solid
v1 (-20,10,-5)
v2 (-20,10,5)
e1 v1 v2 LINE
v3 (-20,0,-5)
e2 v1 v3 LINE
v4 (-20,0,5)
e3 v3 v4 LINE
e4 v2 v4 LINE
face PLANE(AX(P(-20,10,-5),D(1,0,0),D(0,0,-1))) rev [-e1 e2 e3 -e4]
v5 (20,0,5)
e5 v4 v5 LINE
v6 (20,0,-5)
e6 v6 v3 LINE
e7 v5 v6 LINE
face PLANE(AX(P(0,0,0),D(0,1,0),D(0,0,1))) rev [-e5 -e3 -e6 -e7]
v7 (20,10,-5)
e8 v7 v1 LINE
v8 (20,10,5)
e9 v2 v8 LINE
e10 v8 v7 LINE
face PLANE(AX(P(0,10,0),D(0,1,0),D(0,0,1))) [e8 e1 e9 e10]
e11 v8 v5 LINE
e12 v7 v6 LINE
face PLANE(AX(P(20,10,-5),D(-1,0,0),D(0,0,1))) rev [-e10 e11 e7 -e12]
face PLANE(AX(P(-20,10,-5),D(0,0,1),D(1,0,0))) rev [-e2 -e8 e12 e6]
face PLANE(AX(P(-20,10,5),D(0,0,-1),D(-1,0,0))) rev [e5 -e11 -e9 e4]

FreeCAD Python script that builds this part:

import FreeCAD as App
import Part
import Sketcher

V = App.Vector


def add_polygon(sketch, points):
    """Adds a closed chain of lines whose ends are joined by coincident constraints."""
    first, n = sketch.GeometryCount, len(points)
    for a, b in zip(points, points[1:] + points[:1]):
        sketch.addGeometry(Part.LineSegment(App.Vector(*a, 0), App.Vector(*b, 0)), False)
    for i in range(n):
        sketch.addConstraint(Sketcher.Constraint("Coincident", first + i, 2, first + (i + 1) % n, 1))

doc = App.newDocument("Part")
body = doc.addObject("PartDesign::Body", "Body")

# Sketch on XZ plane
sketch1 = body.newObject("Sketcher::SketchObject", "Sketch")
sketch1.AttachmentSupport = (doc.getObject("XZ_Plane"), [""])
sketch1.MapMode = "FlatFace"
add_polygon(sketch1, [(-20, -5), (-20, 5), (20, 5), (20, -5)])  # lines 0-3
sketch1.addConstraint([
    Sketcher.Constraint("Vertical", 0),
    Sketcher.Constraint("Horizontal", 1),
    Sketcher.Constraint("Vertical", 2),
    Sketcher.Constraint("Horizontal", 3),
    Sketcher.Constraint("Symmetric", 0, 2, 2, 2, -1, 1),
    Sketcher.Constraint("DistanceX", 1, 1, 1, 2, 40.0),
    Sketcher.Constraint("DistanceY", 0, 1, 0, 2, 10.0),
])
pad1 = body.newObject("PartDesign::Pad", "Pad")
pad1.Profile = sketch1
pad1.Length = 10
pad1.Reversed = True

doc.recompute()
